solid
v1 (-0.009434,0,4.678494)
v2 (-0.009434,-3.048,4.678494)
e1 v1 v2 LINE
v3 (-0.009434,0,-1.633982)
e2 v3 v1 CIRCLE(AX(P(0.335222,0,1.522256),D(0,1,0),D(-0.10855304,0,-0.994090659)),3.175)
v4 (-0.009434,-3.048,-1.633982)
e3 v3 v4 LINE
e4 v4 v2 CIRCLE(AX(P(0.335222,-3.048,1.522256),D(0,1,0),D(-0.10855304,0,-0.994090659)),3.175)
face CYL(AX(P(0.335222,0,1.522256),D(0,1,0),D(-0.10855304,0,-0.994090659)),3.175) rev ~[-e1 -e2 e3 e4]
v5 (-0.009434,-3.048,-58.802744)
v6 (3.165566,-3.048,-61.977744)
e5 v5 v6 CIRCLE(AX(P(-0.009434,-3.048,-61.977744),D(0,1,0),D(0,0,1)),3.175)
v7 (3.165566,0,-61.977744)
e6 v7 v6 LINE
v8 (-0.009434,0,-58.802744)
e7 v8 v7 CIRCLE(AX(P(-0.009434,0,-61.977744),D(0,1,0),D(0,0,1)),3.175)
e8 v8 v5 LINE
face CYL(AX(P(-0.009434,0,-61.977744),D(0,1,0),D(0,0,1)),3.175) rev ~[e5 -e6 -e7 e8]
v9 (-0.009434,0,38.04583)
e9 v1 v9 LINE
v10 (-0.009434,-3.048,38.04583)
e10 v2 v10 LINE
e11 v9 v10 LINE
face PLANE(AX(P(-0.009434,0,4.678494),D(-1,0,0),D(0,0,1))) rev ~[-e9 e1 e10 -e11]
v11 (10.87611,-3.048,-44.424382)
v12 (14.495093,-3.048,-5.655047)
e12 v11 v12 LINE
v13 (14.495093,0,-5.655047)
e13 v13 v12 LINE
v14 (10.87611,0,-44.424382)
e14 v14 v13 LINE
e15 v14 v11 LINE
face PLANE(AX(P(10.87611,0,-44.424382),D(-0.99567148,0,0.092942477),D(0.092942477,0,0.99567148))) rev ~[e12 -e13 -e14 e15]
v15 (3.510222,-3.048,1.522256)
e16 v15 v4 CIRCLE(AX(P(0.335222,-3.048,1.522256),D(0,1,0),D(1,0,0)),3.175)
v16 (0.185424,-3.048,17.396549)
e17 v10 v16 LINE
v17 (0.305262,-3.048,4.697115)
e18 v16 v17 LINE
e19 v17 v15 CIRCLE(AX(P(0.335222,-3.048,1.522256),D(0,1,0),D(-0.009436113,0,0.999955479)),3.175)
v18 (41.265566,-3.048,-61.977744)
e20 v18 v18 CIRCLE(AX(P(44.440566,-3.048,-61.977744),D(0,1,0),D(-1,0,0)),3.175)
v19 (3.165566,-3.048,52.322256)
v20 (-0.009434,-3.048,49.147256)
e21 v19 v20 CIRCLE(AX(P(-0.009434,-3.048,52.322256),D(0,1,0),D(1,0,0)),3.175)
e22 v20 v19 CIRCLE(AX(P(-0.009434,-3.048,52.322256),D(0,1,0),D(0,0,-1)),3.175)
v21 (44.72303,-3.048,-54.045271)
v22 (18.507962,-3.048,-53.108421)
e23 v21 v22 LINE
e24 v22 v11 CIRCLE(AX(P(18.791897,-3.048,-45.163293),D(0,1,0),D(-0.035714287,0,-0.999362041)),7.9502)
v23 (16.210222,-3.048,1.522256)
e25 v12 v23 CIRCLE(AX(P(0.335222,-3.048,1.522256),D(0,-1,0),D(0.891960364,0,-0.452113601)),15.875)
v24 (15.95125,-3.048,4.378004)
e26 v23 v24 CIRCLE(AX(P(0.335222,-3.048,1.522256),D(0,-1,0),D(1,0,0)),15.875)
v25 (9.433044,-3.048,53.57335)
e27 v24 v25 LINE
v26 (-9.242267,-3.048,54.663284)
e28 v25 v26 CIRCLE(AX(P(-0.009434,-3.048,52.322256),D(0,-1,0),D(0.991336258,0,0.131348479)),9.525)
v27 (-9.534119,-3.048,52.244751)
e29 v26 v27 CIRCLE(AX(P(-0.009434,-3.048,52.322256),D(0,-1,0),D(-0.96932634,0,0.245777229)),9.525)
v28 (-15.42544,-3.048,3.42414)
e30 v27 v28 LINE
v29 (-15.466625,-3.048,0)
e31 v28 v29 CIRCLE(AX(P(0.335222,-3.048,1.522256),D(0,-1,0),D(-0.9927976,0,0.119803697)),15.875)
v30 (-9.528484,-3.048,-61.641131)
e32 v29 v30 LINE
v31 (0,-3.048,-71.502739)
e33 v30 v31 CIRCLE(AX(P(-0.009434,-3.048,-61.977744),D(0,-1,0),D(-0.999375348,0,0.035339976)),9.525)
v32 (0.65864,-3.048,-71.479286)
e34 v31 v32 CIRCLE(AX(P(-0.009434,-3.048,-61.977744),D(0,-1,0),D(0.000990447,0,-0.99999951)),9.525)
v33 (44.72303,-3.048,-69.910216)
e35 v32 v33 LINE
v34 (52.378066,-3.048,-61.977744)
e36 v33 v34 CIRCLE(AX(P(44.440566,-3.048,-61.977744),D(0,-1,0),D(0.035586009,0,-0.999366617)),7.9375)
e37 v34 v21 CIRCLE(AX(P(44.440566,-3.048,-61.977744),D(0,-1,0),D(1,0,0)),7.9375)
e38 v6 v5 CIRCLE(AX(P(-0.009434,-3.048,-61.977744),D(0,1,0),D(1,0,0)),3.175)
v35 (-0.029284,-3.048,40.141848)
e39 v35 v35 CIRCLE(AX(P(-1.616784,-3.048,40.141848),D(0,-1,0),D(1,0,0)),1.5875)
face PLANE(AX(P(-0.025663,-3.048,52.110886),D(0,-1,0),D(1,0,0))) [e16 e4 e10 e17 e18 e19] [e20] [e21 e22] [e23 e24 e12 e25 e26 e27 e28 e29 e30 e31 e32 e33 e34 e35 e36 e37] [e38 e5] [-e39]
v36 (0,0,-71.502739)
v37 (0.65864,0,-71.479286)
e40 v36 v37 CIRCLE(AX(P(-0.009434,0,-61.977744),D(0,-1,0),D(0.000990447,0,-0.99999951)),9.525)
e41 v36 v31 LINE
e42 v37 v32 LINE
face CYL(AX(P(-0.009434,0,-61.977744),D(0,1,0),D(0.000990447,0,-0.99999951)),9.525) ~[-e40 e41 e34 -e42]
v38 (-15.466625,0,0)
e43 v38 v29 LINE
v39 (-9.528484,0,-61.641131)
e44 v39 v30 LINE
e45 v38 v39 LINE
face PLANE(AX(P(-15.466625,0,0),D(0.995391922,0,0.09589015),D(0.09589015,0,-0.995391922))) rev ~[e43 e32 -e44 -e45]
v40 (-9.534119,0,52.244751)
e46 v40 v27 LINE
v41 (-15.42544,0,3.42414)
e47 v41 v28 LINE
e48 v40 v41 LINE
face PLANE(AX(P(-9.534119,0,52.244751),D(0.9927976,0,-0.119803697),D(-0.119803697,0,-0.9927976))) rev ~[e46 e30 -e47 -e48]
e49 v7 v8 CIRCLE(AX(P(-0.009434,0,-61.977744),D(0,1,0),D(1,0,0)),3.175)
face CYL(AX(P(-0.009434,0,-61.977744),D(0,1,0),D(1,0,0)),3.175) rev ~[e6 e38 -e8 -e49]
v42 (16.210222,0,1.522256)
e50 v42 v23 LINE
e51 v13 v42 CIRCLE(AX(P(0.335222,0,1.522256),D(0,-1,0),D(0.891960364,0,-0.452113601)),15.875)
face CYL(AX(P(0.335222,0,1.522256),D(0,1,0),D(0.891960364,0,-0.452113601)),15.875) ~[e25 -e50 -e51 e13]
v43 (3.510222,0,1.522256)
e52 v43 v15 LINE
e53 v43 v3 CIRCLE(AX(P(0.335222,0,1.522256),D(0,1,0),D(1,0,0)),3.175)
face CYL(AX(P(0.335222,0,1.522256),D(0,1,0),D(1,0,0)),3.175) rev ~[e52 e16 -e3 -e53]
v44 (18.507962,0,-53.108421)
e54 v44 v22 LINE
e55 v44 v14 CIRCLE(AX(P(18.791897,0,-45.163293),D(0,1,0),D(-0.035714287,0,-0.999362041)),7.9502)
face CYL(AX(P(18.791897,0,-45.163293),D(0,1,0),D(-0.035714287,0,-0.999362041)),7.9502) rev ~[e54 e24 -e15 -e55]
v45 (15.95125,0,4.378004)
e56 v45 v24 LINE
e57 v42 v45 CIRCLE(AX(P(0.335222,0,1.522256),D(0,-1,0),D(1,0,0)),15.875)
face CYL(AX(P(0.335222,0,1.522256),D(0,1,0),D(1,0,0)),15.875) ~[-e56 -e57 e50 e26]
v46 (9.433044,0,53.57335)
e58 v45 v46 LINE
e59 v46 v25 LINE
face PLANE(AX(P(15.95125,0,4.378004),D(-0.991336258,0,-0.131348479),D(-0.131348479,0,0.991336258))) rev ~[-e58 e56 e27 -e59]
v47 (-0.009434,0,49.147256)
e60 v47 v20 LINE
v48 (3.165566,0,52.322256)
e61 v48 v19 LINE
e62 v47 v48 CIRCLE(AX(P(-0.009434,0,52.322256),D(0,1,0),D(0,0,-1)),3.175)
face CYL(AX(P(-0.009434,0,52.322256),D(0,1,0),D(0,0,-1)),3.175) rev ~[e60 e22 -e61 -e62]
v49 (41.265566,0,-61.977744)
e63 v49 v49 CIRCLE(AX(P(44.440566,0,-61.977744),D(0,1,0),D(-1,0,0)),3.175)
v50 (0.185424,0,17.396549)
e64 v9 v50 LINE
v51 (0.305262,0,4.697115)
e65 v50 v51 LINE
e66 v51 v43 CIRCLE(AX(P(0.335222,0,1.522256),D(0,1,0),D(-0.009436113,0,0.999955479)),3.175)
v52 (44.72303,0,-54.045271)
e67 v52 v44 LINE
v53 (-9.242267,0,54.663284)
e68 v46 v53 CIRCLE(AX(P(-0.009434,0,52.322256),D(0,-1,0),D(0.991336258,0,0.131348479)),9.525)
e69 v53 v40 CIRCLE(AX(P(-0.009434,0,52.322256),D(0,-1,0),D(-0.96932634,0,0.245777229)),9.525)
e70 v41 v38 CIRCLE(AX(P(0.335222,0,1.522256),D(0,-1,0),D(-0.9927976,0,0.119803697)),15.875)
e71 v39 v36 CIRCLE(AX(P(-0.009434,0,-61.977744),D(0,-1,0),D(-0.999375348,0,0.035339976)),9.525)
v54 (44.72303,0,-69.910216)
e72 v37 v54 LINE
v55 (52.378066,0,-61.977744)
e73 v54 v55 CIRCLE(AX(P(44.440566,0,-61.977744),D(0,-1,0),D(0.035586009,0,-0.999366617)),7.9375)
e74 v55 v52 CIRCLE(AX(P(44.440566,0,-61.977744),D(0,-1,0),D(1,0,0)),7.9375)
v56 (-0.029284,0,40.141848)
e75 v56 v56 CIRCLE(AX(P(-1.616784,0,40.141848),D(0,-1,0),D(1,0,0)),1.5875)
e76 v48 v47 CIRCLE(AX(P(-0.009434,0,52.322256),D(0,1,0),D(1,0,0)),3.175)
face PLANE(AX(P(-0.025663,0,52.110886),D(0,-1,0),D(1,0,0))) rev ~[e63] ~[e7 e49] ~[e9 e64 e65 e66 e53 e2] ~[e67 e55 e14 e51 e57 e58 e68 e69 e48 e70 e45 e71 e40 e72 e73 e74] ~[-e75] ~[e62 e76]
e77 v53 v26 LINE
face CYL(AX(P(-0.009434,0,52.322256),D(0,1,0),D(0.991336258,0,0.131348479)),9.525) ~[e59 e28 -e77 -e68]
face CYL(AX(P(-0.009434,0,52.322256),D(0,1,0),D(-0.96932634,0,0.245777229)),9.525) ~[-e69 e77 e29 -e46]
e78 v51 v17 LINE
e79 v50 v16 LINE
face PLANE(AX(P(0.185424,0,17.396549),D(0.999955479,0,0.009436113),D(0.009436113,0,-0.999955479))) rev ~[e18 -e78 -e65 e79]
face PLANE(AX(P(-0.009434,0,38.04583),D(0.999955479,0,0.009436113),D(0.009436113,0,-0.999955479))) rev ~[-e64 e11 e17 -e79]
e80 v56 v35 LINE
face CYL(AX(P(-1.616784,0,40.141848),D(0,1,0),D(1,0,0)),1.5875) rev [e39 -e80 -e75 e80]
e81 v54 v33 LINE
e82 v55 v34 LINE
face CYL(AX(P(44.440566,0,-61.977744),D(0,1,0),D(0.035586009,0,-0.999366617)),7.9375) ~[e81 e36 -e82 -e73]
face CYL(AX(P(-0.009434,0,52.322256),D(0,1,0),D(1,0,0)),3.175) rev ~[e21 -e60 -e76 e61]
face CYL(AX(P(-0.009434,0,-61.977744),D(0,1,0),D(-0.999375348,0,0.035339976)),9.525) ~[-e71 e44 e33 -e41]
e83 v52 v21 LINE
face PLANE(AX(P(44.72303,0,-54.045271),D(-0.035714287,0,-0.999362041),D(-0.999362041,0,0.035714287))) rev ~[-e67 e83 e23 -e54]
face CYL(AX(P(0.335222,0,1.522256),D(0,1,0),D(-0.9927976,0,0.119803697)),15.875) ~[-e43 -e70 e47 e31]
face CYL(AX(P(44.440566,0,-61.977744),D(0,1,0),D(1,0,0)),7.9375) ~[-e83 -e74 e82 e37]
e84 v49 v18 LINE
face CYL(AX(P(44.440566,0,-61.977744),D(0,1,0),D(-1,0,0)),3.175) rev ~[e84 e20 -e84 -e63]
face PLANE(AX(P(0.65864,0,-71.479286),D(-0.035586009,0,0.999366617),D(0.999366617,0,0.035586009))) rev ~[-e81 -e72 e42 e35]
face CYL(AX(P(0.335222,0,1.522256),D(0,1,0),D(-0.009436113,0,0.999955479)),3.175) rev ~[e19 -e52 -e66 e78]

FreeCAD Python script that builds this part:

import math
import FreeCAD as App
import Part
import Sketcher
from FreeCAD import Vector
Q = App.Units.Quantity

doc = App.newDocument("Part")
body = doc.addObject("PartDesign::Body", "Body")

sketch1 = doc.addObject("Sketcher::SketchObject", "Sketch")
body.addObject(sketch1)
sketch1.AttachmentSupport = (doc.XZ_Plane, [""])
sketch1.MapMode = "FlatFace"
sketch1.addGeometry([
    Part.ArcOfCircle(Part.Circle(Vector(-0.009434, -61.977744, 0), Vector(0, 0, 1), 9.525), math.radians(-89.943252), math.radians(-85.978031)),
    Part.LineSegment(Vector(0.65864, -71.479286, 0), Vector(44.72303, -69.910216, 0)),
    Part.ArcOfCircle(Part.Circle(Vector(44.440566, -61.977744, 0), Vector(0, 0, 1), 7.9375), math.radians(-87.960641), math.radians(0)),
    Part.ArcOfCircle(Part.Circle(Vector(44.440566, -61.977744, 0), Vector(0, 0, 1), 7.9375), math.radians(0), math.radians(87.960641)),
    Part.LineSegment(Vector(44.72303, -54.045271, 0), Vector(18.507962, -53.108421, 0)),
    Part.ArcOfCircle(Part.Circle(Vector(18.791897, -45.163293, 0), Vector(0, 0, 1), 7.9502), math.radians(174.667092), math.radians(267.953287)),
    Part.LineSegment(Vector(10.87611, -44.424382, 0), Vector(14.495093, -5.655047, 0)),
    Part.ArcOfCircle(Part.Circle(Vector(0.335222, 1.522256, 0), Vector(0, 0, 1), 15.875), math.radians(-26.879371), math.radians(0)),
    Part.ArcOfCircle(Part.Circle(Vector(0.335222, 1.522256, 0), Vector(0, 0, 1), 15.875), math.radians(0), math.radians(10.363333)),
    Part.LineSegment(Vector(15.95125, 4.378004, 0), Vector(9.433044, 53.57335, 0)),
    Part.ArcOfCircle(Part.Circle(Vector(-0.009434, 52.322256, 0), Vector(0, 0, 1), 9.525), math.radians(7.547523), math.radians(165.77223)),
    Part.ArcOfCircle(Part.Circle(Vector(-0.009434, 52.322256, 0), Vector(0, 0, 1), 9.525), math.radians(165.77223), math.radians(180.466223)),
    Part.LineSegment(Vector(-9.534119, 52.244751, 0), Vector(-15.42544, 3.42414, 0)),
    Part.ArcOfCircle(Part.Circle(Vector(0.335222, 1.522256, 0), Vector(0, 0, 1), 15.875), math.radians(173.119226), math.radians(185.502556)),
    Part.LineSegment(Vector(-15.466625, 0, 0), Vector(-9.528484, -61.641131, 0)),
    Part.ArcOfCircle(Part.Circle(Vector(-0.009434, -61.977744, 0), Vector(0, 0, 1), 9.525), math.radians(177.974747), math.radians(270.056748)),
    Part.ArcOfCircle(Part.Circle(Vector(-0.009434, -61.977744, 0), Vector(0, 0, 1), 3.175), math.radians(90), math.radians(360)),
    Part.ArcOfCircle(Part.Circle(Vector(-0.009434, -61.977744, 0), Vector(0, 0, 1), 3.175), math.radians(0), math.radians(90)),
    Part.Circle(Vector(44.440566, -61.977744, 0), Vector(0, 0, 1), 3.175),
    Part.LineSegment(Vector(-0.009434, 38.04583, 0), Vector(0.185424, 17.396549, 0)),
    Part.LineSegment(Vector(0.185424, 17.396549, 0), Vector(0.305262, 4.697115, 0)),
    Part.ArcOfCircle(Part.Circle(Vector(0.335222, 1.522256, 0), Vector(0, 0, 1), 3.175), math.radians(0), math.radians(90.540657)),
    Part.ArcOfCircle(Part.Circle(Vector(0.335222, 1.522256, 0), Vector(0, 0, 1), 3.175), math.radians(-96.231911), math.radians(0)),
    Part.ArcOfCircle(Part.Circle(Vector(0.335222, 1.522256, 0), Vector(0, 0, 1), 3.175), math.radians(96.231911), math.radians(263.768089)),
    Part.LineSegment(Vector(-0.009434, 4.678494, 0), Vector(-0.009434, 38.04583, 0)),
    Part.Circle(Vector(-1.616784, 40.141848, 0), Vector(0, 0, 1), 1.5875),
    Part.ArcOfCircle(Part.Circle(Vector(-0.009434, 52.322256, 0), Vector(0, 0, 1), 3.175), math.radians(0), math.radians(270)),
    Part.ArcOfCircle(Part.Circle(Vector(-0.009434, 52.322256, 0), Vector(0, 0, 1), 3.175), math.radians(-90), math.radians(0)),
], False)
sketch1.addConstraint([
    Sketcher.Constraint("Coincident", 0, 2, 1, 1),
    Sketcher.Constraint("Coincident", 1, 2, 2, 1),
    Sketcher.Constraint("Coincident", 2, 2, 3, 1),
    Sketcher.Constraint("Coincident", 3, 2, 4, 1),
    Sketcher.Constraint("Coincident", 4, 2, 5, 2),
    Sketcher.Constraint("Coincident", 5, 1, 6, 1),
    Sketcher.Constraint("Coincident", 6, 2, 7, 1),
    Sketcher.Constraint("Coincident", 7, 2, 8, 1),
    Sketcher.Constraint("Coincident", 8, 2, 9, 1),
    Sketcher.Constraint("Coincident", 9, 2, 10, 1),
    Sketcher.Constraint("Coincident", 10, 2, 11, 1),
    Sketcher.Constraint("Coincident", 11, 2, 12, 1),
    Sketcher.Constraint("Coincident", 12, 2, 13, 1),
    Sketcher.Constraint("Coincident", 13, 2, 14, 1),
    Sketcher.Constraint("Coincident", 14, 2, 15, 1),
    Sketcher.Constraint("Coincident", 15, 2, 0, 1),
    Sketcher.Constraint("Coincident", 16, 1, 17, 2),
    Sketcher.Constraint("Coincident", 17, 1, 16, 2),
    Sketcher.Constraint("Coincident", 19, 2, 20, 1),
    Sketcher.Constraint("Coincident", 20, 2, 21, 2),
    Sketcher.Constraint("Coincident", 21, 1, 22, 2),
    Sketcher.Constraint("Coincident", 22, 1, 23, 2),
    Sketcher.Constraint("Coincident", 23, 1, 24, 1),
    Sketcher.Constraint("Coincident", 24, 2, 19, 1),
    Sketcher.Constraint("Coincident", 26, 1, 27, 2),
    Sketcher.Constraint("Coincident", 27, 1, 26, 2),
    Sketcher.Constraint("Vertical", 24),
    Sketcher.Constraint("Coincident", 3, 3, 2, 3),
    Sketcher.Constraint("Coincident", 8, 3, 7, 3),
    Sketcher.Constraint("Coincident", 11, 3, 10, 3),
    Sketcher.Constraint("Coincident", 13, 3, 7, 3),
    Sketcher.Constraint("Coincident", 15, 3, 0, 3),
    Sketcher.Constraint("Coincident", 16, 3, 0, 3),
    Sketcher.Constraint("Coincident", 18, 3, 2, 3),
    Sketcher.Constraint("Coincident", 21, 3, 7, 3),
    Sketcher.Constraint("Coincident", 22, 3, 7, 3),
    Sketcher.Constraint("Coincident", 23, 3, 7, 3),
    Sketcher.Constraint("Coincident", 26, 3, 10, 3),
    Sketcher.Constraint("PointOnObject", 13, 2, -1),
    Sketcher.Constraint("PointOnObject", 15, 2, -2),
    Sketcher.Constraint("Diameter", 18, Q("0.25 in")),
    Sketcher.Constraint("Diameter", 25, Q("0.125 in")),
    Sketcher.Constraint("Radius", 0, Q("0.375 in")),
    Sketcher.Constraint("Radius", 2, Q("0.3125 in")),
    Sketcher.Constraint("Radius", 5, Q("0.313 in")),
    Sketcher.Constraint("Radius", 7, Q("0.625 in")),
    Sketcher.Constraint("Radius", 10, Q("0.375 in")),
    Sketcher.Constraint("Radius", 13, Q("0.625 in")),
    Sketcher.Constraint("Radius", 16, Q("0.125 in")),
    Sketcher.Constraint("Radius", 17, Q("0.125 in")),
    Sketcher.Constraint("Radius", 21, Q("0.125 in")),
    Sketcher.Constraint("Radius", 26, Q("0.125 in")),
    Sketcher.Constraint("Radius", 27, Q("0.125 in")),
    Sketcher.Constraint("DistanceY", 7, 3, 10, 3, Q("2 in")),
    Sketcher.Constraint("Distance", 20, Q("0.5 in")),
    Sketcher.Constraint("DistanceY", 0, 3, 7, 3, Q("2.5 in")),
    Sketcher.Constraint("DistanceY", 2, 3, 7, 3, Q("2.5 in")),
    Sketcher.Constraint("DistanceX", 0, 3, 2, 3, Q("1.75 in")),
    Sketcher.Constraint("DistanceX", 10, 3, 2, 3, Q("1.75 in")),
    Sketcher.Constraint("Distance", 19, Q("0.813 in")),
    Sketcher.Constraint("DistanceX", 16, 1, 17, 1, Q("0.125 in")),
    Sketcher.Constraint("DistanceY", 17, 1, 16, 1, Q("0.125 in")),
    Sketcher.Constraint("DistanceX", 27, 1, 26, 1, Q("0.125 in")),
    Sketcher.Constraint("DistanceY", 27, 1, 26, 1, Q("0.125 in")),
    Sketcher.Constraint("DistanceX", -1, 1, 19, 2, Q("0.0073001 in")),
    Sketcher.Constraint("DistanceY", 25, 3, 9, 2, Q("13.431502 mm")),
    Sketcher.Constraint("DistanceX", 19, 2, 7, 3, Q("0.149798 mm")),
    Sketcher.Constraint("DistanceY", 24, 1, 24, 2, Q("33.367336 mm")),
    Sketcher.Constraint("DistanceY", -1, 1, 25, 3, Q("40.141848 mm")),
    Sketcher.Constraint("DistanceX", -1, 1, 0, 2, Q("0.65864 mm")),
    Sketcher.Constraint("DistanceX", -1, 1, 1, 2, Q("44.72303 mm")),
    Sketcher.Constraint("DistanceX", -1, 1, 3, 2, Q("44.72303 mm")),
    Sketcher.Constraint("DistanceY", 3, 2, -1, 1, Q("54.045271 mm")),
    Sketcher.Constraint("DistanceX", -1, 1, 4, 2, Q("18.507962 mm")),
    Sketcher.Constraint("DistanceY", 4, 2, -1, 1, Q("53.108421 mm")),
    Sketcher.Constraint("DistanceX", -1, 1, 5, 1, Q("10.87611 mm")),
    Sketcher.Constraint("DistanceY", 5, 1, -1, 1, Q("44.424382 mm")),
    Sketcher.Constraint("DistanceX", -1, 1, 8, 2, Q("15.95125 mm")),
    Sketcher.Constraint("DistanceX", 11, 2, -1, 1, Q("9.534119 mm")),
    Sketcher.Constraint("DistanceY", -1, 1, 11, 2, Q("52.244751 mm")),
    Sketcher.Constraint("DistanceX", 12, 2, -1, 1, Q("15.42544 mm")),
    Sketcher.Constraint("DistanceY", 14, 2, -1, 1, Q("61.641131 mm")),
    Sketcher.Constraint("DistanceY", 22, 1, -1, 1, Q("1.633982 mm")),
    Sketcher.Constraint("DistanceX", 25, 3, 11, 3, Q("1.60735 mm")),
    Sketcher.Constraint("DistanceY", 2, 2, 5, 3, Q("16.814451 mm")),
    Sketcher.Constraint("DistanceX", 21, 3, 6, 2, Q("14.159871 mm")),
    Sketcher.Constraint("DistanceY", 7, 2, 8, 2, Q("2.855748 mm")),
    Sketcher.Constraint("DistanceY", 11, 3, 10, 2, Q("2.341028 mm")),
    Sketcher.Constraint("DistanceX", 20, 2, 7, 3, Q("0.02996 mm")),
    Sketcher.Constraint("DistanceY", -1, 1, 21, 1, Q("1.522256 mm")),
])
pad1 = doc.addObject("PartDesign::Pad", "Pad")
body.addObject(pad1)
pad1.Profile = sketch1
pad1.Length = Q("0.12 in")

doc.recompute()
